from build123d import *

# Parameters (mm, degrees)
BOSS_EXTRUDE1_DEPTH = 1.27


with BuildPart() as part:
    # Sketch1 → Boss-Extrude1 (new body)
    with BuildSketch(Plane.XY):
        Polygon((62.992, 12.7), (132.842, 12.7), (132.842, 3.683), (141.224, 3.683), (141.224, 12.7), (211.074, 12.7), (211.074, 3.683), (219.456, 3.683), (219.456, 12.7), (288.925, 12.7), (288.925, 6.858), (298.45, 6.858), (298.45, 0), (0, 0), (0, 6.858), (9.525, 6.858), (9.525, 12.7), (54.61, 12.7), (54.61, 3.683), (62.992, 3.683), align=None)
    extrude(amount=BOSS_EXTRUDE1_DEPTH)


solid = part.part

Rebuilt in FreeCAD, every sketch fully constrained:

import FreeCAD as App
import Part
import Sketcher
Q = App.Units.Quantity


def add_polygon(sketch, points):
    """Adds a closed chain of lines whose ends are joined by coincident constraints."""
    first, n = sketch.GeometryCount, len(points)
    for a, b in zip(points, points[1:] + points[:1]):
        sketch.addGeometry(Part.LineSegment(App.Vector(*a, 0), App.Vector(*b, 0)), False)
    for i in range(n):
        sketch.addConstraint(Sketcher.Constraint("Coincident", first + i, 2, first + (i + 1) % n, 1))

doc = App.newDocument("Part")
body = doc.addObject("PartDesign::Body", "Body")

# Sketch on XY plane
sketch1 = doc.addObject("Sketcher::SketchObject", "Sketch")
body.addObject(sketch1)
sketch1.AttachmentSupport = (doc.XY_Plane, [""])
sketch1.MapMode = "FlatFace"
add_polygon(sketch1, [(133, 13), (63, 13), (63, 4), (55, 4), (55, 13), (10, 13), (10, 7), (0, 7), (0, 0), (298, 0), (298, 7), (289, 7), (289, 13), (219, 13), (219, 4), (211, 4), (211, 13), (141, 13), (141, 4), (133, 4)])  # lines 0-19
sketch1.addConstraint(Sketcher.Constraint("Horizontal", 0))
sketch1.addConstraint(Sketcher.Constraint("Vertical", 1))
sketch1.addConstraint(Sketcher.Constraint("Horizontal", 2))
sketch1.addConstraint(Sketcher.Constraint("Vertical", 3))
sketch1.addConstraint(Sketcher.Constraint("Horizontal", 4))
sketch1.addConstraint(Sketcher.Constraint("Vertical", 5))
sketch1.addConstraint(Sketcher.Constraint("Horizontal", 6))
sketch1.addConstraint(Sketcher.Constraint("Vertical", 7))
sketch1.addConstraint(Sketcher.Constraint("Horizontal", 8))
sketch1.addConstraint(Sketcher.Constraint("Vertical", 9))
sketch1.addConstraint(Sketcher.Constraint("Horizontal", 10))
sketch1.addConstraint(Sketcher.Constraint("Vertical", 11))
sketch1.addConstraint(Sketcher.Constraint("Horizontal", 12))
sketch1.addConstraint(Sketcher.Constraint("Vertical", 13))
sketch1.addConstraint(Sketcher.Constraint("Horizontal", 14))
sketch1.addConstraint(Sketcher.Constraint("Vertical", 15))
sketch1.addConstraint(Sketcher.Constraint("Horizontal", 16))
sketch1.addConstraint(Sketcher.Constraint("Vertical", 17))
sketch1.addConstraint(Sketcher.Constraint("Horizontal", 18))
sketch1.addConstraint(Sketcher.Constraint("Vertical", 19))
sketch1.addConstraint(Sketcher.Constraint("Coincident", 7, 2, -1, 1))
sketch1.addConstraint(Sketcher.Constraint("Horizontal", 0, 2, 3, 2))
sketch1.addConstraint(Sketcher.Constraint("Horizontal", 6, 2, 9, 2))
sketch1.addConstraint(Sketcher.Constraint("Horizontal", 4, 2, 11, 2))
sketch1.addConstraint(Sketcher.Constraint("Horizontal", 2, 2, 13, 2))
sketch1.addConstraint(Sketcher.Constraint("Horizontal", 12, 2, 15, 2))
sketch1.addConstraint(Sketcher.Constraint("Horizontal", 14, 2, 17, 2))
sketch1.addConstraint(Sketcher.Constraint("Equal", 6, 10))
sketch1.addConstraint(Sketcher.Constraint("Equal", 2, 14))
sketch1.addConstraint(Sketcher.Constraint("Equal", 0, 16))
sketch1.addConstraint(Sketcher.Constraint("Equal", 14, 18))
sketch1.addConstraint(Sketcher.Constraint("DistanceX", 0, 2, 0, 1, Q("2.75 in")))
sketch1.addConstraint(Sketcher.Constraint("DistanceX", 2, 2, 2, 1, Q("0.33 in")))
sketch1.addConstraint(Sketcher.Constraint("DistanceX", 8, 1, 8, 2, Q("11.75 in")))
sketch1.addConstraint(Sketcher.Constraint("DistanceY", 5, 2, 5, 1, Q("0.23 in")))
sketch1.addConstraint(Sketcher.Constraint("DistanceY", 7, 2, 7, 1, Q("0.27 in")))
sketch1.addConstraint(Sketcher.Constraint("DistanceX", 2, 2, 8, 2, Q("9.6 in")))
sketch1.addConstraint(Sketcher.Constraint("DistanceX", 4, 2, 4, 1, Q("1.775 in")))
sketch1.addConstraint(Sketcher.Constraint("DistanceY", 1, 2, 1, 1, Q("0.355 in")))
pad1 = doc.addObject("PartDesign::Pad", "Pad")
body.addObject(pad1)
pad1.Profile = sketch1
pad1.Length = Q("0.05 in")

doc.recompute()
